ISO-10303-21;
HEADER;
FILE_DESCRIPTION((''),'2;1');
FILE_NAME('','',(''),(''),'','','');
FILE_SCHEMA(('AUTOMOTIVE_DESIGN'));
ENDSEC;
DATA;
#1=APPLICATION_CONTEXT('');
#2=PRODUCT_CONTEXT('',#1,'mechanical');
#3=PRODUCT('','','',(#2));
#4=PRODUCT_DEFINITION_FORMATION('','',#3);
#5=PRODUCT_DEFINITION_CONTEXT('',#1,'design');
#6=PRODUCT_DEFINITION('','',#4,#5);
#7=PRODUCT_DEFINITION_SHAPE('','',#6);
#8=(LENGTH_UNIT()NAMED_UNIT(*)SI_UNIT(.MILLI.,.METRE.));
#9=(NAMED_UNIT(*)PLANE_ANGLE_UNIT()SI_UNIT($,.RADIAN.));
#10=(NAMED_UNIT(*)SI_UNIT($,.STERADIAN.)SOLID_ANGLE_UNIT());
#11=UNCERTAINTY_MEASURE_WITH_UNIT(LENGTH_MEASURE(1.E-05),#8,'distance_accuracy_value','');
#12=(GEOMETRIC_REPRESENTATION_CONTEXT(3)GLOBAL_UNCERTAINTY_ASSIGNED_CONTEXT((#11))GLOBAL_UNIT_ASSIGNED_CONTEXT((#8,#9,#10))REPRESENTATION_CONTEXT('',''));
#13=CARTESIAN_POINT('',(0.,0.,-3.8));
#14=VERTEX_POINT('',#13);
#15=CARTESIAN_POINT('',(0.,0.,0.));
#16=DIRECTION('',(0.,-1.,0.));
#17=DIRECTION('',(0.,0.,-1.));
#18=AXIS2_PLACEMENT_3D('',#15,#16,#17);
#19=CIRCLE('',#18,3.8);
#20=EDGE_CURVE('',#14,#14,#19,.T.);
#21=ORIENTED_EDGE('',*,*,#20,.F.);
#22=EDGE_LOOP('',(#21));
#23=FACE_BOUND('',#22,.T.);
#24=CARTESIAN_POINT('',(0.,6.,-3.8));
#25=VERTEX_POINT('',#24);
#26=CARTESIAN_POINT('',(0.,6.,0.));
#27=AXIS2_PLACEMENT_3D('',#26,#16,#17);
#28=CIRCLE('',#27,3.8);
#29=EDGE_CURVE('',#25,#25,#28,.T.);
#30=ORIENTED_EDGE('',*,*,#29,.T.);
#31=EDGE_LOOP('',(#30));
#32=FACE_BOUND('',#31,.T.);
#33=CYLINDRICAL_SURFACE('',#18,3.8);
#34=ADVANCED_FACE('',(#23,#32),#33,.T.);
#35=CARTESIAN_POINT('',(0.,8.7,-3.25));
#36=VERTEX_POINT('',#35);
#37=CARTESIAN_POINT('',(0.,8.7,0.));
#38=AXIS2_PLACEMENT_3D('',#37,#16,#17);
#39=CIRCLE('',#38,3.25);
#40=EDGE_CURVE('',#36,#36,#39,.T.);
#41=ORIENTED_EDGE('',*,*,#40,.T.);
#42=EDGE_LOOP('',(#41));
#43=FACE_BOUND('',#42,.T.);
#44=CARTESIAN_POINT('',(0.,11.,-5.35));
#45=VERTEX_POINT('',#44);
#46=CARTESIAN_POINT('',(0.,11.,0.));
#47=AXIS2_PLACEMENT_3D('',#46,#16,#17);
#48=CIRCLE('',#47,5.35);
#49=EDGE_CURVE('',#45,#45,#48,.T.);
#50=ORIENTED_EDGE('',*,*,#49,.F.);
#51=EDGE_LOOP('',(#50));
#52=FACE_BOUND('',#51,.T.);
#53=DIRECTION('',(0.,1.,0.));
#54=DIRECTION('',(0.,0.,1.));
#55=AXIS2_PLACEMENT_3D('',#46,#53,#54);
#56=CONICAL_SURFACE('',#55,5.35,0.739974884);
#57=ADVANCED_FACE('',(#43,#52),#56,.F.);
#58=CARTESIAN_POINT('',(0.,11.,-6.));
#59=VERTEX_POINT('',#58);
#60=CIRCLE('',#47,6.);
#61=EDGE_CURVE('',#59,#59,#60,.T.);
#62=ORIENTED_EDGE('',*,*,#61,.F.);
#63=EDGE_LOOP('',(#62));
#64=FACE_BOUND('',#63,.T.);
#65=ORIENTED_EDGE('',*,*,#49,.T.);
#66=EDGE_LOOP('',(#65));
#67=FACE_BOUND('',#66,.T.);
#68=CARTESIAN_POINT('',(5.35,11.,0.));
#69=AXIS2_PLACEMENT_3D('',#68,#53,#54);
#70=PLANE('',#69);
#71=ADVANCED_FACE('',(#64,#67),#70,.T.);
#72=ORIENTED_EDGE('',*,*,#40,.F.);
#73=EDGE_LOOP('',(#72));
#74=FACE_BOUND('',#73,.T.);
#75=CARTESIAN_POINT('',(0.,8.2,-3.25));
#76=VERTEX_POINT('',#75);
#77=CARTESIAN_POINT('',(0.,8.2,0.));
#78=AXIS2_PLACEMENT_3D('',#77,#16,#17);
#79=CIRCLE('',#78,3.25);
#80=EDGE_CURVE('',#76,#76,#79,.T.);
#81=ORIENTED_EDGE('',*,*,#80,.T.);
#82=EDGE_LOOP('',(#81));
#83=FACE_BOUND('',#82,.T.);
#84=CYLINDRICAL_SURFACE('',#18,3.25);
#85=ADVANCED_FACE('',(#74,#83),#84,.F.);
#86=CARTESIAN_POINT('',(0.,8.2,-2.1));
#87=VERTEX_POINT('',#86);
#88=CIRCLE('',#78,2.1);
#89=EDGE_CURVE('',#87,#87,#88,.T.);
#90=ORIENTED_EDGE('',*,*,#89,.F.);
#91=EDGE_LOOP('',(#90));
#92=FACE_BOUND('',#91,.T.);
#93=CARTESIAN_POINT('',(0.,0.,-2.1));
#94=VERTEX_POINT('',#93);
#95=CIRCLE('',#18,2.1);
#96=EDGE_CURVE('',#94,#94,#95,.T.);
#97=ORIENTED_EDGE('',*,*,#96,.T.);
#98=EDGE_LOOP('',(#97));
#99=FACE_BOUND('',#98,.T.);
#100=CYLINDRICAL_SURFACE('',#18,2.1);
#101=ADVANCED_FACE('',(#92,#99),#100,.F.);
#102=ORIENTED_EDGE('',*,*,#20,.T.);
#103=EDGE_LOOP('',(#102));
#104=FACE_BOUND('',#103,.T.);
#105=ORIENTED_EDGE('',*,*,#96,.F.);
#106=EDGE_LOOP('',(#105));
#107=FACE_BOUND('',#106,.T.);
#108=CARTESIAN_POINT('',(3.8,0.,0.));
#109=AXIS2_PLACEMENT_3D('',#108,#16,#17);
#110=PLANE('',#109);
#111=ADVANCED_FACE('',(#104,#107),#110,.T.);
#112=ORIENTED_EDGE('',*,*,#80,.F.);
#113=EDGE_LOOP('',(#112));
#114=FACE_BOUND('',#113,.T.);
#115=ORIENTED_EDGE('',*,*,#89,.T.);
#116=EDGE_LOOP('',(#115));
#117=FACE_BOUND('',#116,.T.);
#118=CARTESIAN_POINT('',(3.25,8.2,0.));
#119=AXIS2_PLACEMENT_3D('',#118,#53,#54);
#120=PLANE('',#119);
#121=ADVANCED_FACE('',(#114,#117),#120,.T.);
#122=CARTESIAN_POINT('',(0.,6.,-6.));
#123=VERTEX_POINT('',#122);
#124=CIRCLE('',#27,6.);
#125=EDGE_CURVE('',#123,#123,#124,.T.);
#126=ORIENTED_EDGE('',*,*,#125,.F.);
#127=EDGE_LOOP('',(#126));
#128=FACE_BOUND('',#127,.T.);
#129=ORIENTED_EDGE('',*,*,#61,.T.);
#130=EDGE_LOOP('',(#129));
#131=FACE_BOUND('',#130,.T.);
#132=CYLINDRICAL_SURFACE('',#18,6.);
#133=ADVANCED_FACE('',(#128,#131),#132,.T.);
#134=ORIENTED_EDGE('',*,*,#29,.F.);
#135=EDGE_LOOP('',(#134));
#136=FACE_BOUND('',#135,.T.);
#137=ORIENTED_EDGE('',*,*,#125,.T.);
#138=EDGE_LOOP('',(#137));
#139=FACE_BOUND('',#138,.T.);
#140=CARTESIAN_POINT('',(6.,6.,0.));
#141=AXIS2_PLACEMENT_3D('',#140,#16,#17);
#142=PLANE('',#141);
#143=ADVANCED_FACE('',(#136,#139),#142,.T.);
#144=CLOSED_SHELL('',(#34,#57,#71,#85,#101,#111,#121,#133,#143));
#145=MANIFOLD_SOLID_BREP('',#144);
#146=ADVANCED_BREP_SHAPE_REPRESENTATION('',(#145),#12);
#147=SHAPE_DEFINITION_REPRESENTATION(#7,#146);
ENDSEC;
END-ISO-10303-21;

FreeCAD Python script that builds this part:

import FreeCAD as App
import Part
import Sketcher
Q = App.Units.Quantity

doc = App.newDocument("Part")
body = doc.addObject("PartDesign::Body", "Body")

sketch1 = body.newObject("Sketcher::SketchObject", "Sketch")
sketch1.AttachmentSupport = (doc.getObject("XY_Plane"), [""])
sketch1.MapMode = "FlatFace"
sketch1.addGeometry(Part.LineSegment(App.Vector(2.1, 8.2, 0), App.Vector(2.1, 0, 0)), False)
sketch1.addGeometry(Part.LineSegment(App.Vector(2.1, 0, 0), App.Vector(3.8, 0, 0)), False)
sketch1.addGeometry(Part.LineSegment(App.Vector(3.8, 0, 0), App.Vector(3.8, 6, 0)), False)
sketch1.addGeometry(Part.LineSegment(App.Vector(3.8, 6, 0), App.Vector(6, 6, 0)), False)
sketch1.addGeometry(Part.LineSegment(App.Vector(6, 6, 0), App.Vector(6, 11, 0)), False)
sketch1.addGeometry(Part.LineSegment(App.Vector(6, 11, 0), App.Vector(5.3, 11, 0)), False)
sketch1.addGeometry(Part.LineSegment(App.Vector(5.3, 11, 0), App.Vector(3.2, 8.7, 0)), False)
sketch1.addGeometry(Part.LineSegment(App.Vector(3.2, 8.7, 0), App.Vector(3.2, 8.2, 0)), False)
sketch1.addGeometry(Part.LineSegment(App.Vector(3.2, 8.2, 0), App.Vector(2.1, 8.2, 0)), False)
sketch1.addConstraint(Sketcher.Constraint("Coincident", 0, 2, 1, 1))
sketch1.addConstraint(Sketcher.Constraint("Coincident", 1, 2, 2, 1))
sketch1.addConstraint(Sketcher.Constraint("Coincident", 2, 2, 3, 1))
sketch1.addConstraint(Sketcher.Constraint("Coincident", 3, 2, 4, 1))
sketch1.addConstraint(Sketcher.Constraint("Coincident", 4, 2, 5, 1))
sketch1.addConstraint(Sketcher.Constraint("Coincident", 5, 2, 6, 1))
sketch1.addConstraint(Sketcher.Constraint("Coincident", 6, 2, 7, 1))
sketch1.addConstraint(Sketcher.Constraint("Coincident", 7, 2, 8, 1))
sketch1.addConstraint(Sketcher.Constraint("Coincident", 8, 2, 0, 1))
sketch1.addConstraint(Sketcher.Constraint("Vertical", 0))
sketch1.addConstraint(Sketcher.Constraint("Horizontal", 1))
sketch1.addConstraint(Sketcher.Constraint("Vertical", 2))
sketch1.addConstraint(Sketcher.Constraint("Horizontal", 3))
sketch1.addConstraint(Sketcher.Constraint("Vertical", 4))
sketch1.addConstraint(Sketcher.Constraint("Horizontal", 5))
sketch1.addConstraint(Sketcher.Constraint("Vertical", 7))
sketch1.addConstraint(Sketcher.Constraint("Horizontal", 8))
sketch1.addConstraint(Sketcher.Constraint("PointOnObject", 0, 2, -1))
sketch1.addConstraint(Sketcher.Constraint("DistanceY", 2, 1, 2, 2, Q("6 mm")))
sketch1.addConstraint(Sketcher.Constraint("DistanceY", 4, 1, 4, 2, Q("5 mm")))
sketch1.addConstraint(Sketcher.Constraint("DistanceX", 1, 1, 1, 2, Q("1.7 mm")))
sketch1.addConstraint(Sketcher.Constraint("DistanceX", 3, 1, 3, 2, Q("2.2 mm")))
sketch1.addConstraint(Sketcher.Constraint("DistanceY", 0, 2, 0, 1, Q("8.2 mm")))
sketch1.addConstraint(Sketcher.Constraint("DistanceY", 7, 2, 7, 1, Q("0.5 mm")))
sketch1.addConstraint(Sketcher.Constraint("DistanceX", -1, 1, 3, 2, Q("6 mm")))
sketch1.addConstraint(Sketcher.Constraint("DistanceX", 5, 2, 5, 1, Q("0.65 mm")))
sketch1.addConstraint(Sketcher.Constraint("DistanceX", 8, 2, 8, 1, Q("1.15 mm")))
revolution = body.newObject("PartDesign::Revolution", "Revolution")
revolution.Profile = sketch1
revolution.ReferenceAxis = (sketch1, ["V_Axis"])
revolution.Angle = 360

doc.recompute()
